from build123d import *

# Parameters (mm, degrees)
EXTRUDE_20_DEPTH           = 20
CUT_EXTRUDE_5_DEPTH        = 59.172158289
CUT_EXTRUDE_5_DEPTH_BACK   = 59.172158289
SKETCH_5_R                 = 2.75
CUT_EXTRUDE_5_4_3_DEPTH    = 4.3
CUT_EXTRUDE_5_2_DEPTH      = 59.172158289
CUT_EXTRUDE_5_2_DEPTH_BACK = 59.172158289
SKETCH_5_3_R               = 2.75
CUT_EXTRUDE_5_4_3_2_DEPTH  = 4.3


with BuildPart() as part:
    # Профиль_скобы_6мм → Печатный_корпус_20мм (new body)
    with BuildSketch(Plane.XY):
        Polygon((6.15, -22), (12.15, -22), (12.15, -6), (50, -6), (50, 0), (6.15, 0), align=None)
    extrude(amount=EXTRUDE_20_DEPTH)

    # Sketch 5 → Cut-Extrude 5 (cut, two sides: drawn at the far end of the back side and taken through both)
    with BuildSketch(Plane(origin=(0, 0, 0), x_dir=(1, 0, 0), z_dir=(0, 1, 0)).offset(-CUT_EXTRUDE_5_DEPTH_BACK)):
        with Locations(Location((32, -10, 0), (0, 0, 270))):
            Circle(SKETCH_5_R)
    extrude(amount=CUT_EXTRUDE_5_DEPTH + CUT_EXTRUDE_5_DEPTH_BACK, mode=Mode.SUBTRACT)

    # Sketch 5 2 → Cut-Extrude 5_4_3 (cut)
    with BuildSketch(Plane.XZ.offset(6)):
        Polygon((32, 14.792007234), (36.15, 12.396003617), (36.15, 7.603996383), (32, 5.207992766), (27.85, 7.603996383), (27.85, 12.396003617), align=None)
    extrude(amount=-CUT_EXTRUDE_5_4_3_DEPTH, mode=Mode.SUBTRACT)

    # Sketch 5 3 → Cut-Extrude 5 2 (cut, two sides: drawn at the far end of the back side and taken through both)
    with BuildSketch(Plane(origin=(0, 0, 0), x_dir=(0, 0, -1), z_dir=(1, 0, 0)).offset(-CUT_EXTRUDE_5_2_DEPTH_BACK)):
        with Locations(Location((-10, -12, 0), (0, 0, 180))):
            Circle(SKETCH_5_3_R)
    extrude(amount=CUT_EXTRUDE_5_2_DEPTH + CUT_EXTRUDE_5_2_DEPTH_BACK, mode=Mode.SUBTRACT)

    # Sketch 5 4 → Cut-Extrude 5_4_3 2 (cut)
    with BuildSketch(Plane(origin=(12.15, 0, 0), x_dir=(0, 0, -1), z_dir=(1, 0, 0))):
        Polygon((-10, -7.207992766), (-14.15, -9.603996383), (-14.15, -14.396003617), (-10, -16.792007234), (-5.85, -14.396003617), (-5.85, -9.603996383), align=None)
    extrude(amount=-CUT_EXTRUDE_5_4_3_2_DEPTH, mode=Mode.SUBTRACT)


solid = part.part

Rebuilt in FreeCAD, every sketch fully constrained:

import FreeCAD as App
import Part
import Sketcher
Q = App.Units.Quantity


def add_polygon(sketch, points):
    """Adds a closed chain of lines whose ends are joined by coincident constraints."""
    first, n = sketch.GeometryCount, len(points)
    for a, b in zip(points, points[1:] + points[:1]):
        sketch.addGeometry(Part.LineSegment(App.Vector(*a, 0), App.Vector(*b, 0)), False)
    for i in range(n):
        sketch.addConstraint(Sketcher.Constraint("Coincident", first + i, 2, first + (i + 1) % n, 1))

doc = App.newDocument("Part")
params = doc.addObject("Spreadsheet::Sheet", "Params")
for row, (alias, value) in enumerate([
    ("sketch1_width", "6 mm"),
    ("sketch1_height", "16 mm"),
    ("sketch1_width2", "37.85 mm"),
    ("pad1_length", "20 mm"),
    ("sketch2_diameter", "5.5 mm"),
    ("pocket2_length", "4.3 mm"),
    ("sketch4_diameter", "5.5 mm"),
    ("pocket4_length", "4.3 mm"),
], start=1):
    params.set(f"A{row}", alias)
    params.set(f"B{row}", "=" + value)
    params.setAlias(f"B{row}", alias)

body = doc.addObject("PartDesign::Body", "Body")

# Sketch on XY plane
sketch1 = doc.addObject("Sketcher::SketchObject", "Sketch")
body.addObject(sketch1)
sketch1.AttachmentSupport = (doc.XY_Plane, [""])
sketch1.MapMode = "FlatFace"
add_polygon(sketch1, [(6, -22), (12, -22), (12, -6), (50, -6), (50, 0), (6, 0)])  # lines 0-5
sketch1.addConstraint(Sketcher.Constraint("Horizontal", 0))
sketch1.addConstraint(Sketcher.Constraint("Vertical", 1))
sketch1.addConstraint(Sketcher.Constraint("Horizontal", 2))
sketch1.addConstraint(Sketcher.Constraint("Vertical", 3))
sketch1.addConstraint(Sketcher.Constraint("Horizontal", 4))
sketch1.addConstraint(Sketcher.Constraint("Vertical", 5))
sketch1.addConstraint(Sketcher.Constraint("PointOnObject", 3, 2, -1))
sketch1.addConstraint(Sketcher.Constraint("Equal", 0, 3))
sketch1.addConstraint(Sketcher.Constraint("DistanceX", 0, 1, 0, 2, 6.0))
sketch1.addConstraint(Sketcher.Constraint("DistanceY", 1, 1, 1, 2, 16.0))
sketch1.addConstraint(Sketcher.Constraint("DistanceX", -1, 1, 2, 2, 50.0))
sketch1.addConstraint(Sketcher.Constraint("DistanceX", 2, 1, 2, 2, 37.85))
sketch1.setExpression("Constraints[14]", "Params.sketch1_width")
sketch1.setExpression("Constraints[15]", "Params.sketch1_height")
sketch1.setExpression("Constraints[17]", "Params.sketch1_width2")
pad1 = doc.addObject("PartDesign::Pad", "Pad")
body.addObject(pad1)
pad1.Profile = sketch1
pad1.setExpression("Length", "Params.pad1_length")

# Sketch on XZ plane
sketch2 = doc.addObject("Sketcher::SketchObject", "Sketch001")
body.addObject(sketch2)
sketch2.AttachmentSupport = (doc.XZ_Plane, [""])
sketch2.MapMode = "FlatFace"
sketch2.addGeometry(Part.Circle(App.Vector(32, 10, 0), App.Vector(0, 0, 1), 2.8), False)
sketch2.addConstraint(Sketcher.Constraint("Diameter", 0, 5.5))
sketch2.addConstraint(Sketcher.Constraint("DistanceX", -1, 1, 0, 3, 32.0))
sketch2.addConstraint(Sketcher.Constraint("DistanceY", -1, 1, 0, 3, 10.0))
sketch2.setExpression("Constraints[0]", "Params.sketch2_diameter")
pocket1 = doc.addObject("PartDesign::Pocket", "Pocket")
body.addObject(pocket1)
pocket1.Profile = sketch2
pocket1.Type = "ThroughAll"
pocket1.Midplane = True

# Sketch on XZ plane
sketch3 = doc.addObject("Sketcher::SketchObject", "Sketch002")
body.addObject(sketch3)
sketch3.AttachmentSupport = (doc.XZ_Plane, [""])
sketch3.MapMode = "FlatFace"
sketch3.AttachmentOffset = App.Placement(App.Vector(0, 0, 6), App.Rotation())
add_polygon(sketch3, [(36.1, 12.4), (32, 14.8), (27.9, 12.4), (27.9, 7.6), (32, 5.2), (36.1, 7.6)])  # lines 0-5
sketch3.addConstraint(Sketcher.Constraint("Vertical", 2))
sketch3.addConstraint(Sketcher.Constraint("Vertical", 5))
sketch3.addConstraint(Sketcher.Constraint("Parallel", 0, 3))
sketch3.addConstraint(Sketcher.Constraint("Parallel", 1, 4))
sketch3.addConstraint(Sketcher.Constraint("Horizontal", 2, 2, 4, 2))
sketch3.addConstraint(Sketcher.Constraint("Horizontal", 1, 2, 5, 2))
sketch3.addConstraint(Sketcher.Constraint("Vertical", 0, 2, 3, 2))
sketch3.addConstraint(Sketcher.Constraint("Angle", 0, Q("150 deg")))
sketch3.addConstraint(Sketcher.Constraint("DistanceX", -1, 1, 0, 2, 32.0))
sketch3.addConstraint(Sketcher.Constraint("DistanceX", 2, 2, 4, 2, 8.3))
sketch3.addConstraint(Sketcher.Constraint("DistanceY", 2, 2, 2, 1, 4.792007))
sketch3.addConstraint(Sketcher.Constraint("DistanceY", -1, 1, 0, 2, 14.792007))
pocket2 = doc.addObject("PartDesign::Pocket", "Pocket001")
body.addObject(pocket2)
pocket2.Profile = sketch3
pocket2.setExpression("Length", "Params.pocket2_length")

# Sketch on YZ plane
sketch4 = doc.addObject("Sketcher::SketchObject", "Sketch003")
body.addObject(sketch4)
sketch4.AttachmentSupport = (doc.YZ_Plane, [""])
sketch4.MapMode = "FlatFace"
sketch4.addGeometry(Part.Circle(App.Vector(-12, 10, 0), App.Vector(0, 0, 1), 2.8), False)
sketch4.addConstraint(Sketcher.Constraint("Diameter", 0, 5.5))
sketch4.addConstraint(Sketcher.Constraint("DistanceX", 0, 3, -1, 1, 12.0))
sketch4.addConstraint(Sketcher.Constraint("DistanceY", -1, 1, 0, 3, 10.0))
sketch4.setExpression("Constraints[0]", "Params.sketch4_diameter")
pocket3 = doc.addObject("PartDesign::Pocket", "Pocket002")
body.addObject(pocket3)
pocket3.Profile = sketch4
pocket3.Type = "ThroughAll"
pocket3.Midplane = True

# Sketch on YZ plane
sketch5 = doc.addObject("Sketcher::SketchObject", "Sketch004")
body.addObject(sketch5)
sketch5.AttachmentSupport = (doc.YZ_Plane, [""])
sketch5.MapMode = "FlatFace"
sketch5.AttachmentOffset = App.Placement(App.Vector(0, 0, 12.15), App.Rotation())
add_polygon(sketch5, [(-7.2, 10), (-9.6, 14.2), (-14.4, 14.2), (-16.8, 10), (-14.4, 5.8), (-9.6, 5.8)])  # lines 0-5
sketch5.addConstraint(Sketcher.Constraint("Horizontal", 1))
sketch5.addConstraint(Sketcher.Constraint("Horizontal", 4))
sketch5.addConstraint(Sketcher.Constraint("Parallel", 0, 3))
sketch5.addConstraint(Sketcher.Constraint("Parallel", 2, 5))
sketch5.addConstraint(Sketcher.Constraint("Horizontal", 2, 2, 5, 2))
sketch5.addConstraint(Sketcher.Constraint("Vertical", 1, 2, 3, 2))
sketch5.addConstraint(Sketcher.Constraint("Vertical", 0, 2, 4, 2))
sketch5.addConstraint(Sketcher.Constraint("Angle", 0, Q("120 deg")))
sketch5.addConstraint(Sketcher.Constraint("DistanceY", -1, 1, 2, 2, 10.0))
sketch5.addConstraint(Sketcher.Constraint("DistanceY", 3, 2, 1, 2, 8.3))
sketch5.addConstraint(Sketcher.Constraint("DistanceX", 1, 2, 1, 1, 4.792007))
sketch5.addConstraint(Sketcher.Constraint("DistanceX", 0, 2, -1, 1, 9.603996))
pocket4 = doc.addObject("PartDesign::Pocket", "Pocket003")
body.addObject(pocket4)
pocket4.Profile = sketch5
pocket4.setExpression("Length", "Params.pocket4_length")

doc.recompute()
